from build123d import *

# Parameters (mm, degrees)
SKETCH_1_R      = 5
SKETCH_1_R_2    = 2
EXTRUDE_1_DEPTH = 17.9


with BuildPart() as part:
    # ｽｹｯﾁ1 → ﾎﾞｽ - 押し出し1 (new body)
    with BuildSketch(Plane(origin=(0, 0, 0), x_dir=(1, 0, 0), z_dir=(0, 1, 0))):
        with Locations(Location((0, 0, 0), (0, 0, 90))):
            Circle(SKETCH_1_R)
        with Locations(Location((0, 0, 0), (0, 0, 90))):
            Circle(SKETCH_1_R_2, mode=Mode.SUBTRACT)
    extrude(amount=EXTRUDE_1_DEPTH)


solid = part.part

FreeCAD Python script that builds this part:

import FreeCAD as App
import Part
import Sketcher
Q = App.Units.Quantity

doc = App.newDocument("Part")
body = doc.addObject("PartDesign::Body", "Body")

# Sketch on XZ plane
sketch1 = body.newObject("Sketcher::SketchObject", "Sketch")
sketch1.AttachmentSupport = (doc.getObject("XZ_Plane"), [""])
sketch1.MapMode = "FlatFace"
sketch1.addGeometry([
    Part.Circle(App.Vector(0, 0, 0), App.Vector(0, 0, 1), 5),
    Part.Circle(App.Vector(0, 0, 0), App.Vector(0, 0, 1), 2),
], False)
sketch1.addConstraint([
    Sketcher.Constraint("Coincident", 0, 3, -1, 1),
    Sketcher.Constraint("Coincident", 1, 3, -1, 1),
    Sketcher.Constraint("Diameter", 0, Q("10 mm")),
    Sketcher.Constraint("Diameter", 1, Q("4 mm")),
])
pad1 = body.newObject("PartDesign::Pad", "Pad")
pad1.Profile = sketch1
pad1.Length = 17.9
pad1.Reversed = True

doc.recompute()
